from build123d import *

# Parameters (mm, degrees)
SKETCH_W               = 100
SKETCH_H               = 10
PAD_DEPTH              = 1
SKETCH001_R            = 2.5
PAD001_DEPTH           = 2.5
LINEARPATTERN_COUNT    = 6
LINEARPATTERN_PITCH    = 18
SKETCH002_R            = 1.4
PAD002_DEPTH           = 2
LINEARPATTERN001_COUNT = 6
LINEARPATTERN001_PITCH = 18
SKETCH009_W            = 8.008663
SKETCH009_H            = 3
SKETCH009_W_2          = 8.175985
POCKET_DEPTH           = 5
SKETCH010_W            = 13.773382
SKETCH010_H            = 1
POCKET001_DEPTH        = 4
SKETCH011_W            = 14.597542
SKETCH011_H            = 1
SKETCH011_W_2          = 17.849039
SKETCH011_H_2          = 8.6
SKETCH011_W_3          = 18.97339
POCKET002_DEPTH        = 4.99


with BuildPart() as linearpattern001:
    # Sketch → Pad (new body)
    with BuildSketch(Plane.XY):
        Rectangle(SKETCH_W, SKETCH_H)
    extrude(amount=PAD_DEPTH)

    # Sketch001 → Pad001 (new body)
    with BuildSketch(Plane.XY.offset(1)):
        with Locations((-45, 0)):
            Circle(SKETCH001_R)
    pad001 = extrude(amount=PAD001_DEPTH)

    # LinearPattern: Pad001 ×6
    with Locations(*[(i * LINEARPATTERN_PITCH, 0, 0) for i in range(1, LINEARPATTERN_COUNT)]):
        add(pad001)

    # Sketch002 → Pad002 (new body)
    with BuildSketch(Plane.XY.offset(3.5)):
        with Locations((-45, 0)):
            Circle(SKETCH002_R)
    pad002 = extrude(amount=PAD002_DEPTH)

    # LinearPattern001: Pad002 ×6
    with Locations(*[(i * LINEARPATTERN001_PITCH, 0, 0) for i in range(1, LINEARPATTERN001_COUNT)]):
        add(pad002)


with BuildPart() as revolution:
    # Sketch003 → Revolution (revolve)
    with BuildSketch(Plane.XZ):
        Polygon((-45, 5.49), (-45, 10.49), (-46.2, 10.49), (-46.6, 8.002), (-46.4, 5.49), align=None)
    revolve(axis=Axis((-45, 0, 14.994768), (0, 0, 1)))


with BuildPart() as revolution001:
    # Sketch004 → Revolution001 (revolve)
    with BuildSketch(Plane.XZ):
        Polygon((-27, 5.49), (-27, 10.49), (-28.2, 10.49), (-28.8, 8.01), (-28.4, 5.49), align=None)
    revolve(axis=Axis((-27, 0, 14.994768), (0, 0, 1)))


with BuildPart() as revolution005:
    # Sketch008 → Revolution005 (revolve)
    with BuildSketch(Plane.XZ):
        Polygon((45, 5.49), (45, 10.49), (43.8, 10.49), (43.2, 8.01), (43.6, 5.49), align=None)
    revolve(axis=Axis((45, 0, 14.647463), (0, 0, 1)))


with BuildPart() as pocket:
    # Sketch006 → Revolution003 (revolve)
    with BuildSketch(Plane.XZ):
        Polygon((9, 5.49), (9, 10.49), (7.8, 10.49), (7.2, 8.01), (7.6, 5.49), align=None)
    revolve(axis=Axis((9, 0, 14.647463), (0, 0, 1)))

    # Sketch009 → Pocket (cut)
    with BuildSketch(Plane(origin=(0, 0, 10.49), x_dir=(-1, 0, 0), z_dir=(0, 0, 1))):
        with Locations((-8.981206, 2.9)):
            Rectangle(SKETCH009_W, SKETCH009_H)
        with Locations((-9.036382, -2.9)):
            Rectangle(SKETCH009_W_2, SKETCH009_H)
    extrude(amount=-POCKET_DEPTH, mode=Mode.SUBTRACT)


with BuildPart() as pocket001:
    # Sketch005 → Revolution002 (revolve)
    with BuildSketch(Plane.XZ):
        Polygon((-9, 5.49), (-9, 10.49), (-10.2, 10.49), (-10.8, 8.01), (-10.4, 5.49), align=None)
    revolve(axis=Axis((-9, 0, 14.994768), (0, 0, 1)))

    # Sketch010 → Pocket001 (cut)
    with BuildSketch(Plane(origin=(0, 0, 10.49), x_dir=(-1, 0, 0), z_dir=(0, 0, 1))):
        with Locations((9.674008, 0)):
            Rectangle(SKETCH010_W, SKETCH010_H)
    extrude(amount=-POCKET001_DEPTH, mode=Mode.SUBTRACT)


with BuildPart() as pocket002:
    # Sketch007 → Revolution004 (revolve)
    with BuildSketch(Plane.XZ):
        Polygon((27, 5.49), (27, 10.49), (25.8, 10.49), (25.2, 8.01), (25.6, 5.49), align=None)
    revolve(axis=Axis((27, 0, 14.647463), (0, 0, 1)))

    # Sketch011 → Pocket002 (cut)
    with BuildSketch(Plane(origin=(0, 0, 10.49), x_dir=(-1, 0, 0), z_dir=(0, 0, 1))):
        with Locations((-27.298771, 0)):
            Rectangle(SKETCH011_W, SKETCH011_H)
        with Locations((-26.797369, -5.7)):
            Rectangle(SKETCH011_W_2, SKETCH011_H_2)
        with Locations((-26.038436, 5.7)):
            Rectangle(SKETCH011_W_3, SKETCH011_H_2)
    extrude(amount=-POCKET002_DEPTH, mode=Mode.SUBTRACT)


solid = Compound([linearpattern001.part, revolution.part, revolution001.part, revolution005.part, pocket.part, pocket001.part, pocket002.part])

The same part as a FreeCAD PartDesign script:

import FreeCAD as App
import Part
import Sketcher
from FreeCAD import Vector


def add_polygon(sketch, points):
    """Adds a closed chain of lines whose ends are joined by coincident constraints."""
    first, n = sketch.GeometryCount, len(points)
    for a, b in zip(points, points[1:] + points[:1]):
        sketch.addGeometry(Part.LineSegment(App.Vector(*a, 0), App.Vector(*b, 0)), False)
    for i in range(n):
        sketch.addConstraint(Sketcher.Constraint("Coincident", first + i, 2, first + (i + 1) % n, 1))

doc = App.newDocument("Part")
params = doc.addObject("Spreadsheet::Sheet", "Params")
for row, (alias, value) in enumerate([
    ("sketch1_width", "100 mm"),
    ("sketch1_height", "10 mm"),
    ("pad1_length", "1 mm"),
    ("sketch2_diameter", "5 mm"),
    ("pad2_length", "2.5 mm"),
    ("linearpattern_pitch", "18 mm"),
    ("sketch3_diameter", "2.8 mm"),
    ("pad3_length", "2 mm"),
    ("linearpattern2_pitch", "18 mm"),
    ("sketch4_height", "5 mm"),
    ("sketch4_width", "1.2 mm"),
    ("sketch4_width2", "1.4 mm"),
    ("revolution_angle", "360 deg"),
    ("sketch5_height", "5 mm"),
    ("sketch5_width", "1.2 mm"),
    ("sketch5_width2", "1.4 mm"),
    ("revolution2_angle", "360 deg"),
    ("sketch6_height", "5 mm"),
    ("sketch6_width", "1.2 mm"),
    ("sketch6_width2", "1.4 mm"),
    ("revolution3_angle", "360 deg"),
    ("sketch7_height", "5 mm"),
    ("sketch7_width", "1.2 mm"),
    ("sketch7_width2", "1.4 mm"),
    ("revolution4_angle", "360 deg"),
    ("sketch8_height", "3 mm"),
    ("pocket1_length", "5 mm"),
    ("sketch9_height", "5 mm"),
    ("sketch9_width", "1.2 mm"),
    ("sketch9_width2", "1.4 mm"),
    ("revolution5_angle", "360 deg"),
    ("sketch10_height", "1 mm"),
    ("pocket2_length", "4 mm"),
    ("sketch11_height", "5 mm"),
    ("sketch11_width", "1.2 mm"),
    ("sketch11_width2", "1.4 mm"),
    ("revolution6_angle", "360 deg"),
    ("sketch12_height", "1 mm"),
    ("sketch12_height2", "8.6 mm"),
    ("pocket3_length", "4.99 mm"),
], start=1):
    params.set(f"A{row}", alias)
    params.set(f"B{row}", "=" + value)
    params.setAlias(f"B{row}", alias)

body = doc.addObject("PartDesign::Body", "Body")

sketch1 = body.newObject("Sketcher::SketchObject", "Sketch")
sketch1.AttachmentSupport = (doc.getObject("XY_Plane"), [""])
sketch1.MapMode = "FlatFace"
add_polygon(sketch1, [(-50, 5), (-50, -5), (50, -5), (50, 5)])
sketch1.addConstraint([
    Sketcher.Constraint("Vertical", 0),
    Sketcher.Constraint("Horizontal", 1),
    Sketcher.Constraint("Vertical", 2),
    Sketcher.Constraint("Horizontal", 3),
    Sketcher.Constraint("Symmetric", 0, 2, 2, 2, -1, 1),
    Sketcher.Constraint("DistanceX", 1, 1, 1, 2, 100.0),
    Sketcher.Constraint("DistanceY", 0, 2, 0, 1, 10.0),
])
sketch1.setExpression("Constraints[9]", "Params.sketch1_width")
sketch1.setExpression("Constraints[10]", "Params.sketch1_height")
pad1 = body.newObject("PartDesign::Pad", "Pad")
pad1.Profile = sketch1
pad1.setExpression("Length", "Params.pad1_length")

sketch2 = body.newObject("Sketcher::SketchObject", "Sketch001")
sketch2.AttachmentSupport = (doc.getObject("XY_Plane"), [""])
sketch2.MapMode = "FlatFace"
sketch2.AttachmentOffset = App.Placement(Vector(0, 0, 1), App.Rotation())
sketch2.addGeometry(Part.Circle(Vector(-45, 0, 0), Vector(0, 0, 1), 2.5), False)
sketch2.addConstraint([
    Sketcher.Constraint("PointOnObject", 0, 3, -1),
    Sketcher.Constraint("Diameter", 0, 5.0),
    Sketcher.Constraint("DistanceX", 0, 3, -1, 1, 45.0),
])
sketch2.setExpression("Constraints[1]", "Params.sketch2_diameter")
pad2 = body.newObject("PartDesign::Pad", "Pad001")
pad2.Profile = sketch2
pad2.setExpression("Length", "Params.pad2_length")
doc.recompute()

linearpattern = body.newObject("PartDesign::LinearPattern", "LinearPattern")
linearpattern.Originals = [pad2]
linearpattern.Direction = (doc.getObject("X_Axis"), [""])
linearpattern.Mode = "offset"
linearpattern.setExpression("Offset", "Params.linearpattern_pitch")
linearpattern.Occurrences = 6
body.Tip = linearpattern

sketch3 = body.newObject("Sketcher::SketchObject", "Sketch002")
sketch3.AttachmentSupport = (doc.getObject("XY_Plane"), [""])
sketch3.MapMode = "FlatFace"
sketch3.AttachmentOffset = App.Placement(Vector(0, 0, 3.5), App.Rotation())
sketch3.addGeometry(Part.Circle(Vector(-45, 0, 0), Vector(0, 0, 1), 1.4), False)
sketch3.addConstraint([
    Sketcher.Constraint("PointOnObject", 0, 3, -1),
    Sketcher.Constraint("Diameter", 0, 2.8),
    Sketcher.Constraint("DistanceX", 0, 3, -1, 1, 45.0),
])
sketch3.setExpression("Constraints[1]", "Params.sketch3_diameter")
pad3 = body.newObject("PartDesign::Pad", "Pad002")
pad3.Profile = sketch3
pad3.setExpression("Length", "Params.pad3_length")
doc.recompute()

linearpattern2 = body.newObject("PartDesign::LinearPattern", "LinearPattern001")
linearpattern2.Originals = [pad3]
linearpattern2.Direction = (doc.getObject("X_Axis"), [""])
linearpattern2.Mode = "offset"
linearpattern2.setExpression("Offset", "Params.linearpattern2_pitch")
linearpattern2.Occurrences = 6
body.Tip = linearpattern2
body2 = doc.addObject("PartDesign::Body", "Body001")

sketch4 = body2.newObject("Sketcher::SketchObject", "Sketch003")
sketch4.AttachmentSupport = (doc.getObject("XZ_Plane001"), [""])
sketch4.MapMode = "FlatFace"
add_polygon(sketch4, [(-45, 5.5), (-45, 10.5), (-46.2, 10.5), (-46.6, 8), (-46.4, 5.5)])
sketch4.addGeometry(Part.LineSegment(Vector(-45, 5.5, 0), Vector(-45, 10.5, 0)), True)
sketch4.addConstraint([
    Sketcher.Constraint("Vertical", 0),
    Sketcher.Constraint("Horizontal", 1),
    Sketcher.Constraint("Horizontal", 4),
    Sketcher.Constraint("Vertical", 5),
    Sketcher.Constraint("Coincident", 5, 1, 4, 2),
    Sketcher.Constraint("Horizontal", 1, 2, 5, 2),
    Sketcher.Constraint("Equal", 2, 3),
    Sketcher.Constraint("DistanceY", 0, 1, 0, 2, 5.0),
    Sketcher.Constraint("DistanceX", 1, 2, 1, 1, 1.2),
    Sketcher.Constraint("DistanceX", 4, 1, 4, 2, 1.4),
    Sketcher.Constraint("DistanceX", 0, 2, -1, 1, 45.0),
    Sketcher.Constraint("DistanceX", 2, 2, -1, 1, 46.6),
    Sketcher.Constraint("DistanceY", -1, 1, 0, 2, 10.49),
])
sketch4.setExpression("Constraints[12]", "Params.sketch4_height")
sketch4.setExpression("Constraints[13]", "Params.sketch4_width")
sketch4.setExpression("Constraints[14]", "Params.sketch4_width2")
revolution = body2.newObject("PartDesign::Revolution", "Revolution")
revolution.Profile = sketch4
revolution.ReferenceAxis = (sketch4, ["Axis0"])
revolution.setExpression("Angle", "Params.revolution_angle")
body3 = doc.addObject("PartDesign::Body", "Body002")

sketch5 = body3.newObject("Sketcher::SketchObject", "Sketch004")
sketch5.AttachmentSupport = (doc.getObject("XZ_Plane002"), [""])
sketch5.MapMode = "FlatFace"
add_polygon(sketch5, [(-27, 5.5), (-27, 10.5), (-28.2, 10.5), (-28.8, 8), (-28.4, 5.5)])
sketch5.addGeometry(Part.LineSegment(Vector(-27, 5.5, 0), Vector(-27, 10.5, 0)), True)
sketch5.addConstraint([
    Sketcher.Constraint("Vertical", 0),
    Sketcher.Constraint("Horizontal", 1),
    Sketcher.Constraint("Horizontal", 4),
    Sketcher.Constraint("Vertical", 5),
    Sketcher.Constraint("Coincident", 5, 1, 4, 2),
    Sketcher.Constraint("Horizontal", 1, 2, 5, 2),
    Sketcher.Constraint("Equal", 2, 3),
    Sketcher.Constraint("DistanceY", 0, 1, 0, 2, 5.0),
    Sketcher.Constraint("DistanceX", 1, 2, 1, 1, 1.2),
    Sketcher.Constraint("DistanceX", 4, 1, 4, 2, 1.4),
    Sketcher.Constraint("DistanceX", 0, 2, -1, 1, 27.0),
    Sketcher.Constraint("DistanceX", 2, 2, -1, 1, 28.8),
    Sketcher.Constraint("DistanceY", -1, 1, 0, 2, 10.49),
])
sketch5.setExpression("Constraints[12]", "Params.sketch5_height")
sketch5.setExpression("Constraints[13]", "Params.sketch5_width")
sketch5.setExpression("Constraints[14]", "Params.sketch5_width2")
revolution2 = body3.newObject("PartDesign::Revolution", "Revolution001")
revolution2.Profile = sketch5
revolution2.ReferenceAxis = (sketch5, ["Axis0"])
revolution2.setExpression("Angle", "Params.revolution2_angle")
body4 = doc.addObject("PartDesign::Body", "Body003")

sketch6 = body4.newObject("Sketcher::SketchObject", "Sketch005")
sketch6.AttachmentSupport = (doc.getObject("XZ_Plane003"), [""])
sketch6.MapMode = "FlatFace"
add_polygon(sketch6, [(45, 5.5), (45, 10.5), (43.8, 10.5), (43.2, 8), (43.6, 5.5)])
sketch6.addGeometry(Part.LineSegment(Vector(45, 5.5, 0), Vector(45, 10.5, 0)), True)
sketch6.addConstraint([
    Sketcher.Constraint("Vertical", 0),
    Sketcher.Constraint("Horizontal", 1),
    Sketcher.Constraint("Horizontal", 4),
    Sketcher.Constraint("Vertical", 5),
    Sketcher.Constraint("Coincident", 5, 1, 4, 2),
    Sketcher.Constraint("Horizontal", 1, 2, 5, 2),
    Sketcher.Constraint("Equal", 2, 3),
    Sketcher.Constraint("DistanceY", 0, 1, 0, 2, 5.0),
    Sketcher.Constraint("DistanceX", 1, 2, 1, 1, 1.2),
    Sketcher.Constraint("DistanceX", 4, 1, 4, 2, 1.4),
    Sketcher.Constraint("DistanceX", -1, 1, 0, 2, 45.0),
    Sketcher.Constraint("DistanceX", -1, 1, 2, 2, 43.2),
    Sketcher.Constraint("DistanceY", -1, 1, 0, 2, 10.49),
])
sketch6.setExpression("Constraints[12]", "Params.sketch6_height")
sketch6.setExpression("Constraints[13]", "Params.sketch6_width")
sketch6.setExpression("Constraints[14]", "Params.sketch6_width2")
revolution3 = body4.newObject("PartDesign::Revolution", "Revolution002")
revolution3.Profile = sketch6
revolution3.ReferenceAxis = (sketch6, ["Axis0"])
revolution3.setExpression("Angle", "Params.revolution3_angle")
body5 = doc.addObject("PartDesign::Body", "Body004")

sketch7 = body5.newObject("Sketcher::SketchObject", "Sketch006")
sketch7.AttachmentSupport = (doc.getObject("XZ_Plane004"), [""])
sketch7.MapMode = "FlatFace"
add_polygon(sketch7, [(9, 5.5), (9, 10.5), (7.8, 10.5), (7.2, 8), (7.6, 5.5)])
sketch7.addGeometry(Part.LineSegment(Vector(9, 5.5, 0), Vector(9, 10.5, 0)), True)
sketch7.addConstraint([
    Sketcher.Constraint("Vertical", 0),
    Sketcher.Constraint("Horizontal", 1),
    Sketcher.Constraint("Horizontal", 4),
    Sketcher.Constraint("Vertical", 5),
    Sketcher.Constraint("Coincident", 5, 1, 4, 2),
    Sketcher.Constraint("Horizontal", 1, 2, 5, 2),
    Sketcher.Constraint("Equal", 2, 3),
    Sketcher.Constraint("DistanceY", 0, 1, 0, 2, 5.0),
    Sketcher.Constraint("DistanceX", 1, 2, 1, 1, 1.2),
    Sketcher.Constraint("DistanceX", 4, 1, 4, 2, 1.4),
    Sketcher.Constraint("DistanceX", -1, 1, 0, 2, 9.0),
    Sketcher.Constraint("DistanceX", -1, 1, 2, 2, 7.2),
    Sketcher.Constraint("DistanceY", -1, 1, 0, 2, 10.49),
])
sketch7.setExpression("Constraints[12]", "Params.sketch7_height")
sketch7.setExpression("Constraints[13]", "Params.sketch7_width")
sketch7.setExpression("Constraints[14]", "Params.sketch7_width2")
revolution4 = body5.newObject("PartDesign::Revolution", "Revolution003")
revolution4.Profile = sketch7
revolution4.ReferenceAxis = (sketch7, ["Axis0"])
revolution4.setExpression("Angle", "Params.revolution4_angle")

sketch8 = body5.newObject("Sketcher::SketchObject", "Sketch007")
sketch8.AttachmentSupport = (doc.getObject("XY_Plane004"), [""])
sketch8.MapMode = "FlatFace"
sketch8.AttachmentOffset = App.Placement(Vector(0, 0, 10.49), App.Rotation())
add_polygon(sketch8, [(13, -4.4), (13, -1.4), (5, -1.4), (5, -4.4)])
add_polygon(sketch8, [(13.1, 1.4), (13.1, 4.4), (4.9, 4.4), (4.9, 1.4)])
sketch8.addConstraint([
    Sketcher.Constraint("Vertical", 0),
    Sketcher.Constraint("Horizontal", 1),
    Sketcher.Constraint("Vertical", 2),
    Sketcher.Constraint("Horizontal", 3),
    Sketcher.Constraint("Vertical", 4),
    Sketcher.Constraint("Horizontal", 5),
    Sketcher.Constraint("Vertical", 6),
    Sketcher.Constraint("Horizontal", 7),
    Sketcher.Constraint("Equal", 2, 4),
    Sketcher.Constraint("DistanceY", 0, 1, 0, 2, 3.0),
    Sketcher.Constraint("DistanceY", 0, 2, -1, 1, 1.4),
    Sketcher.Constraint("DistanceY", -1, 1, 4, 2, 4.4),
    Sketcher.Constraint("DistanceX", 1, 2, 4, 2, 8.1475),
    Sketcher.Constraint("DistanceX", 1, 2, 1, 1, 8.008663),
    Sketcher.Constraint("DistanceX", 5, 2, 5, 1, 8.175985),
    Sketcher.Constraint("DistanceX", -1, 1, 5, 2, 4.94839),
])
sketch8.setExpression("Constraints[17]", "Params.sketch8_height")
pocket1 = body5.newObject("PartDesign::Pocket", "Pocket")
pocket1.Profile = sketch8
pocket1.setExpression("Length", "Params.pocket1_length")
body6 = doc.addObject("PartDesign::Body", "Body005")

sketch9 = body6.newObject("Sketcher::SketchObject", "Sketch008")
sketch9.AttachmentSupport = (doc.getObject("XZ_Plane005"), [""])
sketch9.MapMode = "FlatFace"
add_polygon(sketch9, [(-9, 5.5), (-9, 10.5), (-10.2, 10.5), (-10.8, 8), (-10.4, 5.5)])
sketch9.addGeometry(Part.LineSegment(Vector(-9, 5.5, 0), Vector(-9, 10.5, 0)), True)
sketch9.addConstraint([
    Sketcher.Constraint("Vertical", 0),
    Sketcher.Constraint("Horizontal", 1),
    Sketcher.Constraint("Horizontal", 4),
    Sketcher.Constraint("Vertical", 5),
    Sketcher.Constraint("Coincident", 5, 1, 4, 2),
    Sketcher.Constraint("Horizontal", 1, 2, 5, 2),
    Sketcher.Constraint("Equal", 2, 3),
    Sketcher.Constraint("DistanceY", 0, 1, 0, 2, 5.0),
    Sketcher.Constraint("DistanceX", 1, 2, 1, 1, 1.2),
    Sketcher.Constraint("DistanceX", 4, 1, 4, 2, 1.4),
    Sketcher.Constraint("DistanceX", 0, 2, -1, 1, 9.0),
    Sketcher.Constraint("DistanceX", 2, 2, -1, 1, 10.8),
    Sketcher.Constraint("DistanceY", -1, 1, 0, 2, 10.49),
])
sketch9.setExpression("Constraints[12]", "Params.sketch9_height")
sketch9.setExpression("Constraints[13]", "Params.sketch9_width")
sketch9.setExpression("Constraints[14]", "Params.sketch9_width2")
revolution5 = body6.newObject("PartDesign::Revolution", "Revolution004")
revolution5.Profile = sketch9
revolution5.ReferenceAxis = (sketch9, ["Axis0"])
revolution5.setExpression("Angle", "Params.revolution5_angle")

sketch10 = body6.newObject("Sketcher::SketchObject", "Sketch009")
sketch10.AttachmentSupport = (doc.getObject("XY_Plane005"), [""])
sketch10.MapMode = "FlatFace"
sketch10.AttachmentOffset = App.Placement(Vector(0, 0, 10.49), App.Rotation())
add_polygon(sketch10, [(-2.8, -0.5), (-2.8, 0.5), (-16.6, 0.5), (-16.6, -0.5)])
sketch10.addConstraint([
    Sketcher.Constraint("Vertical", 0),
    Sketcher.Constraint("Horizontal", 1),
    Sketcher.Constraint("Vertical", 2),
    Sketcher.Constraint("Horizontal", 3),
    Sketcher.Constraint("DistanceY", 0, 1, 0, 2, 1.0),
    Sketcher.Constraint("DistanceY", -1, 1, 0, 2, 0.5),
    Sketcher.Constraint("DistanceX", 1, 2, -1, 1, 16.560699),
    Sketcher.Constraint("DistanceX", 1, 2, 1, 1, 13.773382),
])
sketch10.setExpression("Constraints[8]", "Params.sketch10_height")
pocket2 = body6.newObject("PartDesign::Pocket", "Pocket001")
pocket2.Profile = sketch10
pocket2.setExpression("Length", "Params.pocket2_length")
body7 = doc.addObject("PartDesign::Body", "Body006")

sketch11 = body7.newObject("Sketcher::SketchObject", "Sketch010")
sketch11.AttachmentSupport = (doc.getObject("XZ_Plane006"), [""])
sketch11.MapMode = "FlatFace"
add_polygon(sketch11, [(27, 5.5), (27, 10.5), (25.8, 10.5), (25.2, 8), (25.6, 5.5)])
sketch11.addGeometry(Part.LineSegment(Vector(27, 5.5, 0), Vector(27, 10.5, 0)), True)
sketch11.addConstraint([
    Sketcher.Constraint("Vertical", 0),
    Sketcher.Constraint("Horizontal", 1),
    Sketcher.Constraint("Horizontal", 4),
    Sketcher.Constraint("Vertical", 5),
    Sketcher.Constraint("Coincident", 5, 1, 4, 2),
    Sketcher.Constraint("Horizontal", 1, 2, 5, 2),
    Sketcher.Constraint("Equal", 2, 3),
    Sketcher.Constraint("DistanceY", 0, 1, 0, 2, 5.0),
    Sketcher.Constraint("DistanceX", 1, 2, 1, 1, 1.2),
    Sketcher.Constraint("DistanceX", 4, 1, 4, 2, 1.4),
    Sketcher.Constraint("DistanceX", -1, 1, 0, 2, 27.0),
    Sketcher.Constraint("DistanceX", -1, 1, 2, 2, 25.2),
    Sketcher.Constraint("DistanceY", -1, 1, 0, 2, 10.49),
])
sketch11.setExpression("Constraints[12]", "Params.sketch11_height")
sketch11.setExpression("Constraints[13]", "Params.sketch11_width")
sketch11.setExpression("Constraints[14]", "Params.sketch11_width2")
revolution6 = body7.newObject("PartDesign::Revolution", "Revolution005")
revolution6.Profile = sketch11
revolution6.ReferenceAxis = (sketch11, ["Axis0"])
revolution6.setExpression("Angle", "Params.revolution6_angle")

sketch12 = body7.newObject("Sketcher::SketchObject", "Sketch011")
sketch12.AttachmentSupport = (doc.getObject("XY_Plane006"), [""])
sketch12.MapMode = "FlatFace"
sketch12.AttachmentOffset = App.Placement(Vector(0, 0, 10.49), App.Rotation())
add_polygon(sketch12, [(34.6, -0.5), (34.6, 0.5), (20, 0.5), (20, -0.5)])
add_polygon(sketch12, [(35.7, 1.4), (35.7, 10), (17.9, 10), (17.9, 1.4)])
add_polygon(sketch12, [(35.5, -10), (35.5, -1.4), (16.6, -1.4), (16.6, -10)])
sketch12.addConstraint([
    Sketcher.Constraint("Vertical", 0),
    Sketcher.Constraint("Horizontal", 1),
    Sketcher.Constraint("Vertical", 2),
    Sketcher.Constraint("Horizontal", 3),
    Sketcher.Constraint("Vertical", 4),
    Sketcher.Constraint("Horizontal", 5),
    Sketcher.Constraint("Vertical", 6),
    Sketcher.Constraint("Horizontal", 7),
    Sketcher.Constraint("Vertical", 8),
    Sketcher.Constraint("Horizontal", 9),
    Sketcher.Constraint("Vertical", 10),
    Sketcher.Constraint("Horizontal", 11),
    Sketcher.Constraint("Equal", 6, 8),
    Sketcher.Constraint("DistanceY", 0, 1, 0, 2, 1.0),
    Sketcher.Constraint("DistanceY", 4, 1, 4, 2, 8.6),
    Sketcher.Constraint("DistanceX", -1, 1, 1, 2, 20.0),
    Sketcher.Constraint("DistanceY", -1, 1, 4, 2, 10.0),
    Sketcher.Constraint("DistanceY", 10, 2, -1, 1, 10.0),
    Sketcher.Constraint("DistanceY", -1, 1, 0, 2, 0.5),
    Sketcher.Constraint("DistanceX", 1, 2, 1, 1, 14.597542),
    Sketcher.Constraint("DistanceX", 5, 2, 5, 1, 17.849039),
    Sketcher.Constraint("DistanceX", 9, 2, 9, 1, 18.97339),
    Sketcher.Constraint("DistanceX", 9, 2, 3, 2, 18.045801),
    Sketcher.Constraint("DistanceX", -1, 1, 4, 2, 35.721888),
])
sketch12.setExpression("Constraints[25]", "Params.sketch12_height")
sketch12.setExpression("Constraints[26]", "Params.sketch12_height2")
pocket3 = body7.newObject("PartDesign::Pocket", "Pocket002")
pocket3.Profile = sketch12
pocket3.setExpression("Length", "Params.pocket3_length")

doc.recompute()
